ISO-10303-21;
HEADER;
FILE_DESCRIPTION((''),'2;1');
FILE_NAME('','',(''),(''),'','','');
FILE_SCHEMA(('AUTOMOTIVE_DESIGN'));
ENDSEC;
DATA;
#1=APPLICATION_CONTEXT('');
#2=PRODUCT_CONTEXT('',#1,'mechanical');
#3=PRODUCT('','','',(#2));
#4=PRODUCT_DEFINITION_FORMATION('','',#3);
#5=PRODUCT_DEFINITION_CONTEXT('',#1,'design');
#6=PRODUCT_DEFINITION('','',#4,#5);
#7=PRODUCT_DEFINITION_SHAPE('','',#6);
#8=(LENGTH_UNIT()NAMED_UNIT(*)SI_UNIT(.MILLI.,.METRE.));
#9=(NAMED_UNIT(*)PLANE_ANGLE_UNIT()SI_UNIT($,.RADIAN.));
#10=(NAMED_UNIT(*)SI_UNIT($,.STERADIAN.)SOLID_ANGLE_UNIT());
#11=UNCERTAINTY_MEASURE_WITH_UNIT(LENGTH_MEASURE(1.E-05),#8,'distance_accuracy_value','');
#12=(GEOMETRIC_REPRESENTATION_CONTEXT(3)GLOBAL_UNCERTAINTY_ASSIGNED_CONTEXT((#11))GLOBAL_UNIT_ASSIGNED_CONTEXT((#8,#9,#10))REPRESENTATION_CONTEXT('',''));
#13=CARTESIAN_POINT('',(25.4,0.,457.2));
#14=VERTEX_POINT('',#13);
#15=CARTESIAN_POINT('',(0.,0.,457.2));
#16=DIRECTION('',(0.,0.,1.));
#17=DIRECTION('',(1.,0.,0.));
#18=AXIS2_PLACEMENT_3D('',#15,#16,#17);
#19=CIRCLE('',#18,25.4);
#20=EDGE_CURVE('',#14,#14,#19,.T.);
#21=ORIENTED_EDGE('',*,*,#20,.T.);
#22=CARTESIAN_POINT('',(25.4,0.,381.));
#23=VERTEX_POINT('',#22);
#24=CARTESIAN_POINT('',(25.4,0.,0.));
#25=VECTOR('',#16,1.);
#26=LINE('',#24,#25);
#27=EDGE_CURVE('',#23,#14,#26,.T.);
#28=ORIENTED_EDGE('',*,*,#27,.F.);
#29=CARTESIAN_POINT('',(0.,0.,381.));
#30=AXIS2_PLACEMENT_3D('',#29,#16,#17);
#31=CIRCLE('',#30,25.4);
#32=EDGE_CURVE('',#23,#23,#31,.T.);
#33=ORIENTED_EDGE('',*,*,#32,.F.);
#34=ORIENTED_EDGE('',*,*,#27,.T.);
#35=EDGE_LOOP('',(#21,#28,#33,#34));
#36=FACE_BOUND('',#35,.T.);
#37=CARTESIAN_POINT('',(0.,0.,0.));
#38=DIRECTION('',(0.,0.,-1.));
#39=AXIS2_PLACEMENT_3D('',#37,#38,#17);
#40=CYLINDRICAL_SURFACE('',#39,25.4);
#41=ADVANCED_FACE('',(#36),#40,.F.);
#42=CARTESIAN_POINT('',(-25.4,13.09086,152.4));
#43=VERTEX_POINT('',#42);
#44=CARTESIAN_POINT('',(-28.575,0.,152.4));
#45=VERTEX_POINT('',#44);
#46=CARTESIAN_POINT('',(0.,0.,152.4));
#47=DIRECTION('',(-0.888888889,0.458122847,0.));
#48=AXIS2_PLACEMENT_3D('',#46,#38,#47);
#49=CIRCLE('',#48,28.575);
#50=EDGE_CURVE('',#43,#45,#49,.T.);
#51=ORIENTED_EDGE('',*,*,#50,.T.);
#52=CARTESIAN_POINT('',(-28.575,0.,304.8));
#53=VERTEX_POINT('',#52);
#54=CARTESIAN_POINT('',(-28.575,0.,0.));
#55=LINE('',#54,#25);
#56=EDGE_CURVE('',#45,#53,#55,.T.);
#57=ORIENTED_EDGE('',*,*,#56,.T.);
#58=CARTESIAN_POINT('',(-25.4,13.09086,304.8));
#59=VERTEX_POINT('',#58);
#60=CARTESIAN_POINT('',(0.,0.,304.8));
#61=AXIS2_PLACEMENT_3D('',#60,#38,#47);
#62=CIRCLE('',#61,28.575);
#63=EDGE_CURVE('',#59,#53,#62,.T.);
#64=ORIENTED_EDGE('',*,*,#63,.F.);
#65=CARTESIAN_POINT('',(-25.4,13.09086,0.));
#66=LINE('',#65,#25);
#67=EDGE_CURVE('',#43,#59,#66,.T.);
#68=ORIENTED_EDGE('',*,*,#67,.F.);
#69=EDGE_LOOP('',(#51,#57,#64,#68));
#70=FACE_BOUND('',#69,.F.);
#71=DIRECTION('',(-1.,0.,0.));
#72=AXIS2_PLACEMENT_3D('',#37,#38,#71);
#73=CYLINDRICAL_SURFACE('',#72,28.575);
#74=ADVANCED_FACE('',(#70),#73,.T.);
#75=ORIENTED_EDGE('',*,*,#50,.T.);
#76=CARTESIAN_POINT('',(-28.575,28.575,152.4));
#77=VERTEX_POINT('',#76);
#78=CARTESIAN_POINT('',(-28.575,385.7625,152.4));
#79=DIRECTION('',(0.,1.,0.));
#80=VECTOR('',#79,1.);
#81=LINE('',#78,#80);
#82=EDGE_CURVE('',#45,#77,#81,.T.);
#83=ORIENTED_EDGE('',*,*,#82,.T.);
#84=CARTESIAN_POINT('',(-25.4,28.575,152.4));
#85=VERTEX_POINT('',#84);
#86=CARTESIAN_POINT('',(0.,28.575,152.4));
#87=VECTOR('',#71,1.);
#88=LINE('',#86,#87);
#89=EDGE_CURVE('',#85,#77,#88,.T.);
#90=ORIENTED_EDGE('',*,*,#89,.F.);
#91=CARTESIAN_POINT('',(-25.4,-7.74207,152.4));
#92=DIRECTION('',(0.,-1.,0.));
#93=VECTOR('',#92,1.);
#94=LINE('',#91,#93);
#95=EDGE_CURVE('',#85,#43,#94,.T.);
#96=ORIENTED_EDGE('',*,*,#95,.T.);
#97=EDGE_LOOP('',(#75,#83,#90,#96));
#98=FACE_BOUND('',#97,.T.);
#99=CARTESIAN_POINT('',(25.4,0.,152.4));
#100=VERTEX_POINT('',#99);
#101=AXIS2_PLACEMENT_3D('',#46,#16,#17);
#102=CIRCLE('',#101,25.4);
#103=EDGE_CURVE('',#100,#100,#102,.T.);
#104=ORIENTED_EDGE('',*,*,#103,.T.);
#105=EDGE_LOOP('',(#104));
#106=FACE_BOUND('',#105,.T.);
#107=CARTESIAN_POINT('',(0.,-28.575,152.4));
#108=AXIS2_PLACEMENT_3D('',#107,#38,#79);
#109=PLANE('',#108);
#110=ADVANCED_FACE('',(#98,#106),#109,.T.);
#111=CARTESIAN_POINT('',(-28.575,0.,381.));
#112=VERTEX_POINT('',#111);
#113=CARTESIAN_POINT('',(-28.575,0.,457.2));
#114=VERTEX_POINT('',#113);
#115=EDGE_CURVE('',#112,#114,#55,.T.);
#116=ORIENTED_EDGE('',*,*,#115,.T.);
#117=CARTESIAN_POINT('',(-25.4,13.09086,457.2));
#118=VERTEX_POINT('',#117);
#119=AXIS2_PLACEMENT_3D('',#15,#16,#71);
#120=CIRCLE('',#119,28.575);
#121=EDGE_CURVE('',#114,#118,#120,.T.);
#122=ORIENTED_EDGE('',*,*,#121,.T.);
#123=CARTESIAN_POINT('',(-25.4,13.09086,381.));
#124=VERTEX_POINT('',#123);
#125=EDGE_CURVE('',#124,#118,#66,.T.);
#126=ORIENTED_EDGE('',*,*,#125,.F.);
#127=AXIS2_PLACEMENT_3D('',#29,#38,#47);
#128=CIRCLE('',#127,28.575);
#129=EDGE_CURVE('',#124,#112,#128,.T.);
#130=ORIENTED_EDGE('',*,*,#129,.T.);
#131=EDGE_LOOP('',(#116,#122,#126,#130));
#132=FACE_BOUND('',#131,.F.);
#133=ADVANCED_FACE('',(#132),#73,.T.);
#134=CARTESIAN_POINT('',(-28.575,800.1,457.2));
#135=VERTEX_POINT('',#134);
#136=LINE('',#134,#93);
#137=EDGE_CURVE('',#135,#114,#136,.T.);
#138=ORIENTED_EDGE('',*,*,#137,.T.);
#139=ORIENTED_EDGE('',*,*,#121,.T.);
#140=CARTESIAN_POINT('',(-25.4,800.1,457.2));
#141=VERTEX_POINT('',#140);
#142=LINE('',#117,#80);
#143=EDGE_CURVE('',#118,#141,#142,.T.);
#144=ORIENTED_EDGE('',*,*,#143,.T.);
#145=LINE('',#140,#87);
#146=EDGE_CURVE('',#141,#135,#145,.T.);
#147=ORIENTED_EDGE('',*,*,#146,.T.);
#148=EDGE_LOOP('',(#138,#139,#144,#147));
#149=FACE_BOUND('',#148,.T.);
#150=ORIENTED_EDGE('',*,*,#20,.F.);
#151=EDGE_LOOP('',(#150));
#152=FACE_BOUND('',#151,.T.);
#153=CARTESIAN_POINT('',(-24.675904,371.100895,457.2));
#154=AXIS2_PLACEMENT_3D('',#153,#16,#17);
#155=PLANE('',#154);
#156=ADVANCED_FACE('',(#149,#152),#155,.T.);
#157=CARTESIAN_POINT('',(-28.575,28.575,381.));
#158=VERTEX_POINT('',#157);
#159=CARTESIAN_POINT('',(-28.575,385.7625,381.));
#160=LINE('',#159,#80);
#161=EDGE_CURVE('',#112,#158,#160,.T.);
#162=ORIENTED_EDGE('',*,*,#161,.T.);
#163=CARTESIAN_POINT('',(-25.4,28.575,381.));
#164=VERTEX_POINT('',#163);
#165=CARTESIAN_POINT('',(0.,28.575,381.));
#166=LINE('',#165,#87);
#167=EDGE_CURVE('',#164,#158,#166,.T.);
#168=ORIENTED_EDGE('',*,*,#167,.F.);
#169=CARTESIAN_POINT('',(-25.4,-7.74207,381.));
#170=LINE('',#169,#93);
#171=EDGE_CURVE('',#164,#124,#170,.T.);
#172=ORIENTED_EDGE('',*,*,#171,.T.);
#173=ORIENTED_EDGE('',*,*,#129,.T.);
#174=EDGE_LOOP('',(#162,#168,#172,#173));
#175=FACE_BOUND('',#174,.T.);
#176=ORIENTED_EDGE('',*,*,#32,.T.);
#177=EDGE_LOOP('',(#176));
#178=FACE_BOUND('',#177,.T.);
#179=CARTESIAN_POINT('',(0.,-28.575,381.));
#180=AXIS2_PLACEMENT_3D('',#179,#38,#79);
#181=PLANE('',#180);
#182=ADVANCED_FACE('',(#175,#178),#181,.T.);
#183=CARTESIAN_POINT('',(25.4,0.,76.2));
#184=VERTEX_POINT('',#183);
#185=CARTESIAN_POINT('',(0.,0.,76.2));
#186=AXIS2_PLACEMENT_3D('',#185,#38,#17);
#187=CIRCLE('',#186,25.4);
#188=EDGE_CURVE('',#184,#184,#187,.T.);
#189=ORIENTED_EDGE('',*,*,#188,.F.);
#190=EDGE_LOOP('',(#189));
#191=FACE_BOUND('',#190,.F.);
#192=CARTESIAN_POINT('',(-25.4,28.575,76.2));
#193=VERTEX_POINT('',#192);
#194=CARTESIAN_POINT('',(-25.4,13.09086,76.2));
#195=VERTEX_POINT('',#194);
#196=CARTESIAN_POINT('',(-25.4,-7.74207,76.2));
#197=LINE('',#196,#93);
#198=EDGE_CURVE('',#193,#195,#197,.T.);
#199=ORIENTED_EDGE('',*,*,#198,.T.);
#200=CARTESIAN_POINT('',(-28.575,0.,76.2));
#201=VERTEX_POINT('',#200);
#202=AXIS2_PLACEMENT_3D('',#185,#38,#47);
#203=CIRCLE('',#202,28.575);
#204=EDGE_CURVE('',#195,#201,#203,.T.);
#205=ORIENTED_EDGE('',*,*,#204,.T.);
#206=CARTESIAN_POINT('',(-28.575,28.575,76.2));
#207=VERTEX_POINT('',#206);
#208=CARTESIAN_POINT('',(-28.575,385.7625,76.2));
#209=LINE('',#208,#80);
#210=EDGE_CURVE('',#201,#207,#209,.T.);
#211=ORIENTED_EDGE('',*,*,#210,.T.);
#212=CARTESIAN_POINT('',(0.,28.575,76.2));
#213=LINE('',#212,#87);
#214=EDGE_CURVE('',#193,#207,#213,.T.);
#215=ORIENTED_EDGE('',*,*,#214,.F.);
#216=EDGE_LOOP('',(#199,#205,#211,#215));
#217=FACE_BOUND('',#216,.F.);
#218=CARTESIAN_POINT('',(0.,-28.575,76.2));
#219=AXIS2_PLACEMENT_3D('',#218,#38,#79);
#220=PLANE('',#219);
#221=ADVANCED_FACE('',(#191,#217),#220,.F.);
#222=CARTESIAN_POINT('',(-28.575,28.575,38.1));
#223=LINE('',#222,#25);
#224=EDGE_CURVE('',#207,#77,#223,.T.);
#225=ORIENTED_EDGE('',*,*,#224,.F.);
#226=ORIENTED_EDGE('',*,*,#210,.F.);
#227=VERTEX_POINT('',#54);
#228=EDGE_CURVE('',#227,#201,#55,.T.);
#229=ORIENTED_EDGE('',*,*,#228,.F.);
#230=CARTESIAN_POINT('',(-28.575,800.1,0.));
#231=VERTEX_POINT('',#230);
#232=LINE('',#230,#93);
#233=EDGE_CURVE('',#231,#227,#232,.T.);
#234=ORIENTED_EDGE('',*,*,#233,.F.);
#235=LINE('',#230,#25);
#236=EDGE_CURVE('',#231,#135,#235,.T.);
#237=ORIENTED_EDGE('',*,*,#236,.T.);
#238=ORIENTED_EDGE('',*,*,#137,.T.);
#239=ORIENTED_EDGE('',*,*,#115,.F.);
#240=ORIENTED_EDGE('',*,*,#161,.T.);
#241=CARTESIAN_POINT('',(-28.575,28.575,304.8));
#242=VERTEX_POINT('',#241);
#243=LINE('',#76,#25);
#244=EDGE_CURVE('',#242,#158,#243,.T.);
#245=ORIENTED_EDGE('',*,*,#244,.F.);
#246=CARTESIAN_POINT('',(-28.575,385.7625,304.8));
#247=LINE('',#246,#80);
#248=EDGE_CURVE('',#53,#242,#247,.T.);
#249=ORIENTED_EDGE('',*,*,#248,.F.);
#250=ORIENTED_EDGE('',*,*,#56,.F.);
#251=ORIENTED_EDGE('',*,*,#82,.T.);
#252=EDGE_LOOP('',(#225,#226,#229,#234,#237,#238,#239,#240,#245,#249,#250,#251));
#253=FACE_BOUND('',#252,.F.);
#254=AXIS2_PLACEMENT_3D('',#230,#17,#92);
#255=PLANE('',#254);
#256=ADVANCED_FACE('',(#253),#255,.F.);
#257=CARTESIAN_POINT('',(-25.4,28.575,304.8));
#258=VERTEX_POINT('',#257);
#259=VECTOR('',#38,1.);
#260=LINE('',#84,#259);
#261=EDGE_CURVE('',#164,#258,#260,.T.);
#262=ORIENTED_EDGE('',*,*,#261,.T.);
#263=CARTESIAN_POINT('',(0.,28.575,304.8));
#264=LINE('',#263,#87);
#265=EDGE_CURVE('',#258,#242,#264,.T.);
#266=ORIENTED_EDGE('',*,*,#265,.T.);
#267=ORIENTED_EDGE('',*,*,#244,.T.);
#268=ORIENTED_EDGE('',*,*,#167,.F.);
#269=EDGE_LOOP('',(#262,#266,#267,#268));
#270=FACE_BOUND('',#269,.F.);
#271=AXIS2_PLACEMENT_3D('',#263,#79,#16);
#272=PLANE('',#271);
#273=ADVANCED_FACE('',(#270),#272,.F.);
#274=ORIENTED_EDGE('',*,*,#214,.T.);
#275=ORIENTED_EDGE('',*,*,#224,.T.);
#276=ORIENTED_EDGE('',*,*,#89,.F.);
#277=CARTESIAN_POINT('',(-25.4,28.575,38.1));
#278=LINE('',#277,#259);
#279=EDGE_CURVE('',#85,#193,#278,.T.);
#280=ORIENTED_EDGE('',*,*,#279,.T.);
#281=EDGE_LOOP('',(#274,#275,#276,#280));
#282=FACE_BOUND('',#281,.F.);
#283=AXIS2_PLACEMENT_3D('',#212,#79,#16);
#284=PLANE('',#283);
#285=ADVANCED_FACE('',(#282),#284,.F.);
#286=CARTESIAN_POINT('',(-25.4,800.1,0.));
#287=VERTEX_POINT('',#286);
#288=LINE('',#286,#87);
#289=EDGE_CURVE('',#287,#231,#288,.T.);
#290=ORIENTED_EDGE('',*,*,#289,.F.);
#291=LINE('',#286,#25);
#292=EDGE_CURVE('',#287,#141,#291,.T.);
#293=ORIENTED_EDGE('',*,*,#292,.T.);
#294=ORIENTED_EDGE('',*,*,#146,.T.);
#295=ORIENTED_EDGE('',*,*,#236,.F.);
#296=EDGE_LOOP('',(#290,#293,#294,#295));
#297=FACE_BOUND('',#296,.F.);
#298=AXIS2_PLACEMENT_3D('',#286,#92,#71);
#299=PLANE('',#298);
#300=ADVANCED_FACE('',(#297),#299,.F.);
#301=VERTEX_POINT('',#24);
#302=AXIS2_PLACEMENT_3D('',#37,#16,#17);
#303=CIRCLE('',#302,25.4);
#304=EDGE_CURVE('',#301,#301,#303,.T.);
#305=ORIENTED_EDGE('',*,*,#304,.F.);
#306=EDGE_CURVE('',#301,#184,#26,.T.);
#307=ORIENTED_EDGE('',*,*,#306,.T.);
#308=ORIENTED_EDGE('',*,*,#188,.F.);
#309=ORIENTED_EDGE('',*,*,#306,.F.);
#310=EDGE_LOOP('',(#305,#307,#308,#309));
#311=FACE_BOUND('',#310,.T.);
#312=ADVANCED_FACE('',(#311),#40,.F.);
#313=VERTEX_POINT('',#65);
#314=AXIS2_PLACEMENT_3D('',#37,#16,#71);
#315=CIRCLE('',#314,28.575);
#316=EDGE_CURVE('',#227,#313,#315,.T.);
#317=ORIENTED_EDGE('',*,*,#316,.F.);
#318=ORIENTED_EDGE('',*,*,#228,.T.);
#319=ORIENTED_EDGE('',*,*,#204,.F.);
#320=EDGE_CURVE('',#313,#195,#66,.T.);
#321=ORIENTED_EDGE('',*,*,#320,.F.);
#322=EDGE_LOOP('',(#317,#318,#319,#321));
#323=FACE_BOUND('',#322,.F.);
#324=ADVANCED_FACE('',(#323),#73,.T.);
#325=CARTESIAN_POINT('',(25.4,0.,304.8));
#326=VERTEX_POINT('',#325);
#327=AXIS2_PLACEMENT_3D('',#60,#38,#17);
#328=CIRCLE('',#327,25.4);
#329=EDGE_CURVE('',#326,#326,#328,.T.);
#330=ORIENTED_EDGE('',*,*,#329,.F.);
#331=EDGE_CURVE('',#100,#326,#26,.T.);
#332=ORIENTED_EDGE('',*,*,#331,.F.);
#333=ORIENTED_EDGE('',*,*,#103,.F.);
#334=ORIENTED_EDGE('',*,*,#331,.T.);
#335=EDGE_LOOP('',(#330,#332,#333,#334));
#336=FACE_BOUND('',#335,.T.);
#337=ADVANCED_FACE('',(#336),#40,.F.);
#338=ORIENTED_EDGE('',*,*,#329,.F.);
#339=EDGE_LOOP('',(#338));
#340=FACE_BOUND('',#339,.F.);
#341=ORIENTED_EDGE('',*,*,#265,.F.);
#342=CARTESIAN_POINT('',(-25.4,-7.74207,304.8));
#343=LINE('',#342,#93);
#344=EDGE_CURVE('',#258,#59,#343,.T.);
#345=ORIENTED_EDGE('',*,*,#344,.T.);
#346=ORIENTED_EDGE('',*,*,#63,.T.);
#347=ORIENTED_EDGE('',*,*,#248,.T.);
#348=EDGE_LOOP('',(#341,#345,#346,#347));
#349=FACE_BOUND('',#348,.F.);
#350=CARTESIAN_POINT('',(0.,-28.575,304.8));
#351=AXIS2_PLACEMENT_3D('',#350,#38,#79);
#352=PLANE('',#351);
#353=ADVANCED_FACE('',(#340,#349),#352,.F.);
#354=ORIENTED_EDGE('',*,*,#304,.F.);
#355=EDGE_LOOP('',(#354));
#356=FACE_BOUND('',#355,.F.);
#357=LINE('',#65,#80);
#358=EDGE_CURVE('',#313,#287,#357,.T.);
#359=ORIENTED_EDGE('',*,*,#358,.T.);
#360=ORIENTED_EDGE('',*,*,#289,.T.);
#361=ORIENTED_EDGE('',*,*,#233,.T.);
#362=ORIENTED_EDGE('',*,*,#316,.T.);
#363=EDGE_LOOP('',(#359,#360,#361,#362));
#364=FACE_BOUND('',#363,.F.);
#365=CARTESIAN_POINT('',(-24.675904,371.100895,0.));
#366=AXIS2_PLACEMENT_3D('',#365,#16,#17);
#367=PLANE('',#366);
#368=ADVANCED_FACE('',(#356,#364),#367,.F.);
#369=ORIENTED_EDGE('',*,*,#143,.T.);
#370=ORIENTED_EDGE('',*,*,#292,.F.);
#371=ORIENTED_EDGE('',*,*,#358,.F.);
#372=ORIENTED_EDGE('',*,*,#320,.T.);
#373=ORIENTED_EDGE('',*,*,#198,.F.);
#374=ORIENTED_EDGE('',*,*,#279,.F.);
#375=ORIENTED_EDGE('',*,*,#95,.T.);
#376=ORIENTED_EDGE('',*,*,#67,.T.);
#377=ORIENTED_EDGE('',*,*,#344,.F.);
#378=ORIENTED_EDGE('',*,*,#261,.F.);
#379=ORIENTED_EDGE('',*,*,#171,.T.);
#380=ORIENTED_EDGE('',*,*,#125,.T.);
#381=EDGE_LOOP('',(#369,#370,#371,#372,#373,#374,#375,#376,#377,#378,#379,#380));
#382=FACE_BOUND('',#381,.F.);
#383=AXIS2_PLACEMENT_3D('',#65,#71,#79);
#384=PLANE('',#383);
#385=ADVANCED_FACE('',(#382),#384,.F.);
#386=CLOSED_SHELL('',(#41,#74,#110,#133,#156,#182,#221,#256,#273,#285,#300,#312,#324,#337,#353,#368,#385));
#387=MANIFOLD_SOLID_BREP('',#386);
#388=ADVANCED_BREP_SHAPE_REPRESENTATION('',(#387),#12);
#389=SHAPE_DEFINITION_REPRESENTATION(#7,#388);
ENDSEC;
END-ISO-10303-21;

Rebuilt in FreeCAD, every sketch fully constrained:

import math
import FreeCAD as App
import Part
import Sketcher
from FreeCAD import Vector
Q = App.Units.Quantity

doc = App.newDocument("Part")
body = doc.addObject("PartDesign::Body", "Body")

# Sketch on XY plane
sketch1 = doc.addObject("Sketcher::SketchObject", "Sketch")
body.addObject(sketch1)
sketch1.AttachmentSupport = (doc.XY_Plane, [""])
sketch1.MapMode = "FlatFace"
sketch1.addGeometry([
    Part.LineSegment(Vector(-28.575, 800.1, 0), Vector(-28.575, 0, 0)),  # 0
    Part.ArcOfCircle(Part.Circle(Vector(0, 0, 0), Vector(0, 0, 1), 28.575), math.radians(180), math.radians(512.733956)),  # 1
    Part.LineSegment(Vector(-25.4, 13.09086, 0), Vector(-25.4, 800.1, 0)),  # 2
    Part.LineSegment(Vector(-25.4, 800.1, 0), Vector(-28.575, 800.1, 0)),  # 3
    Part.Circle(Vector(0, 0, 0), Vector(0, 0, 1), 25.4),  # 4
], False)
sketch1.addConstraint([
    Sketcher.Constraint("Tangent", 0, 2, 1, 1),
    Sketcher.Constraint("Coincident", 1, 2, 2, 1),
    Sketcher.Constraint("Coincident", 2, 2, 3, 1),
    Sketcher.Constraint("Coincident", 3, 2, 0, 1),
    Sketcher.Constraint("Vertical", 0),
    Sketcher.Constraint("Vertical", 2),
    Sketcher.Constraint("Horizontal", 3),
    Sketcher.Constraint("Coincident", 1, 3, -1, 1),
    Sketcher.Constraint("Coincident", 4, 3, -1, 1),
    Sketcher.Constraint("Diameter", 4, Q("2 in")),
    Sketcher.Constraint("DistanceY", 0, 2, 0, 1, Q("31.5 in")),
    Sketcher.Constraint("DistanceX", 1, 2, -1, 1, Q("1 in")),
    Sketcher.Constraint("Radius", 1, Q("1.125 in")),
])
pad1 = doc.addObject("PartDesign::Pad", "Pad")
body.addObject(pad1)
pad1.Profile = sketch1
pad1.Length = Q("18 in")

# Sketch on YZ plane
sketch2 = doc.addObject("Sketcher::SketchObject", "Sketch001")
body.addObject(sketch2)
sketch2.AttachmentSupport = (doc.YZ_Plane, [""])
sketch2.MapMode = "FlatFace"
sketch2.addGeometry([
    Part.LineSegment(Vector(-28.575, 381, 0), Vector(-28.575, 304.8, 0)),  # 0
    Part.LineSegment(Vector(-28.575, 304.8, 0), Vector(28.575, 304.8, 0)),  # 1
    Part.LineSegment(Vector(28.575, 304.8, 0), Vector(28.575, 381, 0)),  # 2
    Part.LineSegment(Vector(28.575, 381, 0), Vector(-28.575, 381, 0)),  # 3
    Part.LineSegment(Vector(-28.575, 152.4, 0), Vector(-28.575, 76.2, 0)),  # 4
    Part.LineSegment(Vector(-28.575, 76.2, 0), Vector(28.575, 76.2, 0)),  # 5
    Part.LineSegment(Vector(28.575, 76.2, 0), Vector(28.575, 152.4, 0)),  # 6
    Part.LineSegment(Vector(28.575, 152.4, 0), Vector(-28.575, 152.4, 0)),  # 7
], False)
sketch2.addConstraint([
    Sketcher.Constraint("Coincident", 0, 2, 1, 1),
    Sketcher.Constraint("Coincident", 1, 2, 2, 1),
    Sketcher.Constraint("Coincident", 2, 2, 3, 1),
    Sketcher.Constraint("Coincident", 3, 2, 0, 1),
    Sketcher.Constraint("Coincident", 4, 2, 5, 1),
    Sketcher.Constraint("Coincident", 5, 2, 6, 1),
    Sketcher.Constraint("Coincident", 6, 2, 7, 1),
    Sketcher.Constraint("Coincident", 7, 2, 4, 1),
    Sketcher.Constraint("Vertical", 0),
    Sketcher.Constraint("Horizontal", 1),
    Sketcher.Constraint("Vertical", 2),
    Sketcher.Constraint("Horizontal", 3),
    Sketcher.Constraint("Vertical", 4),
    Sketcher.Constraint("Horizontal", 5),
    Sketcher.Constraint("Vertical", 6),
    Sketcher.Constraint("Horizontal", 7),
    Sketcher.Constraint("Vertical", 3, 2, 4, 2),
    Sketcher.Constraint("Vertical", 2, 2, 5, 2),
    Sketcher.Constraint("Equal", 2, 4),
    Sketcher.Constraint("DistanceY", 0, 2, 0, 1, Q("3 in")),
    Sketcher.Constraint("DistanceY", -1, 1, 0, 2, Q("12 in")),
    Sketcher.Constraint("DistanceY", -1, 1, 4, 2, Q("3 in")),
    Sketcher.Constraint("DistanceX", 1, 1, 1, 2, Q("2.25 in")),
    Sketcher.Constraint("DistanceX", 0, 2, -1, 1, Q("1.125 in")),
])
pocket1 = doc.addObject("PartDesign::Pocket", "Pocket")
body.addObject(pocket1)
pocket1.Profile = sketch2
pocket1.Type = "ThroughAll"
pocket1.Midplane = True

doc.recompute()
